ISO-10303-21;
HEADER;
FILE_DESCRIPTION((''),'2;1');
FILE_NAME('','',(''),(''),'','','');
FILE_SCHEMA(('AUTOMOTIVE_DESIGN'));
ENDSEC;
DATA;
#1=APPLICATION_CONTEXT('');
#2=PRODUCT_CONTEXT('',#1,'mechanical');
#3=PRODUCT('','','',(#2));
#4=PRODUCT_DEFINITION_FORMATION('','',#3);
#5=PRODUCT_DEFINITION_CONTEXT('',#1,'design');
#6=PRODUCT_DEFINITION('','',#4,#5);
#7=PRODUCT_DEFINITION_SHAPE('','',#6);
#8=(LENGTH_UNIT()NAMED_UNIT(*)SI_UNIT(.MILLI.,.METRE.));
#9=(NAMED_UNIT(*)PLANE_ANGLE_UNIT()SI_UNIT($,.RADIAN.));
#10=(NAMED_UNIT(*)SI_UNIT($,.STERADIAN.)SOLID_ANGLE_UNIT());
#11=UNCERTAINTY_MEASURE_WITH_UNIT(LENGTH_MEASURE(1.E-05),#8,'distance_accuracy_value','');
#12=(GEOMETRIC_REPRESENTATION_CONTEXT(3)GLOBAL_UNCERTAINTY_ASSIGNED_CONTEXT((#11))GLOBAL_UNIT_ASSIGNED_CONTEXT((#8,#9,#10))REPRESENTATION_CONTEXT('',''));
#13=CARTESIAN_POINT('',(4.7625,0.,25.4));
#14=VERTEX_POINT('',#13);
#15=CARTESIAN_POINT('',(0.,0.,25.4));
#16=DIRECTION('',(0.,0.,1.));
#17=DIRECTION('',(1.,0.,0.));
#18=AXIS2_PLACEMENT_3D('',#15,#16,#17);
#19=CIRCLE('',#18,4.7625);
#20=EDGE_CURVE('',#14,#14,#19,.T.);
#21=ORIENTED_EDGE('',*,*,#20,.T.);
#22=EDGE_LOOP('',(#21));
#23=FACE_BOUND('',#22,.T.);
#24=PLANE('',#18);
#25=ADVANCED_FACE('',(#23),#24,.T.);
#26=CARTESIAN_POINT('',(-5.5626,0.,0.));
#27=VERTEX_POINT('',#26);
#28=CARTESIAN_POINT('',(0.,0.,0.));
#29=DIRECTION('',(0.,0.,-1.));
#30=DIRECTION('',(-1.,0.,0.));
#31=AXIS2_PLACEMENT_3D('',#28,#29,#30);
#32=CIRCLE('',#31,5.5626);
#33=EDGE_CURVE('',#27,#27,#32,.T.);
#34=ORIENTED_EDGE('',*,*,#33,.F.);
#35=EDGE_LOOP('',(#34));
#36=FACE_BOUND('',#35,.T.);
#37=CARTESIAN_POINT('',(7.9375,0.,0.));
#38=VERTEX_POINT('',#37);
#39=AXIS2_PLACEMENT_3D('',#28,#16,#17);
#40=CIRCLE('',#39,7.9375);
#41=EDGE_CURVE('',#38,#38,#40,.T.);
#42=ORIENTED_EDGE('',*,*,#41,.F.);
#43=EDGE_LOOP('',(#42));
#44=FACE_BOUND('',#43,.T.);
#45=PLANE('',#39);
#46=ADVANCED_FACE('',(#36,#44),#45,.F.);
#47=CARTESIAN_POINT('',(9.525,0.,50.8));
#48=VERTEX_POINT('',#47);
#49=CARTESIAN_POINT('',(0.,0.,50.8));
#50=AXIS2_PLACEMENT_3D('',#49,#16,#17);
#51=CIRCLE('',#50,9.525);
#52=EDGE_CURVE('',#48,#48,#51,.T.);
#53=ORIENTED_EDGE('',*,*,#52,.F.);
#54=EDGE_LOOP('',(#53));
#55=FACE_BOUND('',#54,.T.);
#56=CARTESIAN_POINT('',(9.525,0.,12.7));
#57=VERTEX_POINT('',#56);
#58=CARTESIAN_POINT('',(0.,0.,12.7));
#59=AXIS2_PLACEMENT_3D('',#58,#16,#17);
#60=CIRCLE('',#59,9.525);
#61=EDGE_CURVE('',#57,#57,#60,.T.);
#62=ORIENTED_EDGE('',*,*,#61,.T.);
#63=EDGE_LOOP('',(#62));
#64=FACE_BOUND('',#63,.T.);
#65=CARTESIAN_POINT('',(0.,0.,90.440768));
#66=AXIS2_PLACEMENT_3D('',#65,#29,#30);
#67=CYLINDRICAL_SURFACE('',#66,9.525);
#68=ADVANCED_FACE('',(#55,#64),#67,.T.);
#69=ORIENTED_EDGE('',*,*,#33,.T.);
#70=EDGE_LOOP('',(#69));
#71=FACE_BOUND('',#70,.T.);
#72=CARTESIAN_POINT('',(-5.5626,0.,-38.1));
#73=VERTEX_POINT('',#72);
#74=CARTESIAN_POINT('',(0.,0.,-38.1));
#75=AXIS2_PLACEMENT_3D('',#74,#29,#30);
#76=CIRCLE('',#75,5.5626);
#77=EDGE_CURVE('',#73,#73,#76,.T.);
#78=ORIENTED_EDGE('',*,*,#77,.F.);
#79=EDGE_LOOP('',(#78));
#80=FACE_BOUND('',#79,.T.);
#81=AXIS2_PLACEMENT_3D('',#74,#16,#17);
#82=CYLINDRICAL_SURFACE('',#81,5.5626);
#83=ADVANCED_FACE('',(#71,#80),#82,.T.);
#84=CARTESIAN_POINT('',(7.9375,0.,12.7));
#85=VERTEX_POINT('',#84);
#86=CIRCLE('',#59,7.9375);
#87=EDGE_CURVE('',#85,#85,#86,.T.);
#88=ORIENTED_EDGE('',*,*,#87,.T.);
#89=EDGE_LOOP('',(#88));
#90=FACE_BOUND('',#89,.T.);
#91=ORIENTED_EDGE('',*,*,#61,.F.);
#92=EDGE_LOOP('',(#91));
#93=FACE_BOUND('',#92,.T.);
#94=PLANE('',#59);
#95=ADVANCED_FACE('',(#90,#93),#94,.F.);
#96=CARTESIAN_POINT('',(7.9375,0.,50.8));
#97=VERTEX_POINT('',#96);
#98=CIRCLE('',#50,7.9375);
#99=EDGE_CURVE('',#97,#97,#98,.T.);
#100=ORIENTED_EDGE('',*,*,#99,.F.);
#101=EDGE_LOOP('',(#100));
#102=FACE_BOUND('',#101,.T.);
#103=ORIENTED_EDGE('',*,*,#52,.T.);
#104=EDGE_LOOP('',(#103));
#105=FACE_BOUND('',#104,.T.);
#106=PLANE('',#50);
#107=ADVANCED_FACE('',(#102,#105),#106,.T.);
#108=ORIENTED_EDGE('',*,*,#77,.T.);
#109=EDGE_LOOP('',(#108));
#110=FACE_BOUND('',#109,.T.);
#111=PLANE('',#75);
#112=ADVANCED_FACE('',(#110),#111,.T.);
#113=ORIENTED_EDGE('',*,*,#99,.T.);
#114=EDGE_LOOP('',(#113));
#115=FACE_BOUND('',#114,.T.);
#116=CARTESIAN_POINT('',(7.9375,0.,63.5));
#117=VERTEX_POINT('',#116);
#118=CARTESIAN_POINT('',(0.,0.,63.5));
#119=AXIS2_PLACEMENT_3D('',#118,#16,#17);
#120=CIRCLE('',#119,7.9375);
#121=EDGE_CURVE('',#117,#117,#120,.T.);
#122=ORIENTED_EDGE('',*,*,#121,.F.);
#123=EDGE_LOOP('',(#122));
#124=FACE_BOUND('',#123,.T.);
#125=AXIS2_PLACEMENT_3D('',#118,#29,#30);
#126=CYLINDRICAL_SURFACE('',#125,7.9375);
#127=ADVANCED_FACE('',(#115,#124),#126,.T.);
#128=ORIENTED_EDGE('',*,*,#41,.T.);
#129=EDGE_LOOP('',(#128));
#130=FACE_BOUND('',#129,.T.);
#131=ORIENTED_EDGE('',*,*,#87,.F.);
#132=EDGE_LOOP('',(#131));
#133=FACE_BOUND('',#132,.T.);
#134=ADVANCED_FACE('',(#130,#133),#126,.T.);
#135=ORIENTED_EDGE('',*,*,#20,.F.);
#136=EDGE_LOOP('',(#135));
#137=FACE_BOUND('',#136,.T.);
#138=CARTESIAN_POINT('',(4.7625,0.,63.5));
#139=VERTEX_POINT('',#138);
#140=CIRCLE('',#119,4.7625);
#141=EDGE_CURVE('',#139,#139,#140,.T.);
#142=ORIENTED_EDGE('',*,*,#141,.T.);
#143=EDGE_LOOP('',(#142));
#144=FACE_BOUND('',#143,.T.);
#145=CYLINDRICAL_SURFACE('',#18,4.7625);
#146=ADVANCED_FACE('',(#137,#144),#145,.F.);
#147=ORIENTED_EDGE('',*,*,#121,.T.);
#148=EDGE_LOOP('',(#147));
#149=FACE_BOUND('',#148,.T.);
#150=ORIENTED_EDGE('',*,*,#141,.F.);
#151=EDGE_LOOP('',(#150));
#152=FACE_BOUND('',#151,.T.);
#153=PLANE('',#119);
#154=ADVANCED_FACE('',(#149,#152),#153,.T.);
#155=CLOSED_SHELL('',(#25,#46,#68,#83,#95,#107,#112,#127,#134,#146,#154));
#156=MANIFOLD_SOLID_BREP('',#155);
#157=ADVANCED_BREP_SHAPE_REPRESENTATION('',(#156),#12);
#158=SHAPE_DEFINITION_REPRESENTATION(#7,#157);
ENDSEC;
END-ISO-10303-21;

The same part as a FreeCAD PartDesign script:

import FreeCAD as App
import Part
import Sketcher
from FreeCAD import Vector
Q = App.Units.Quantity

doc = App.newDocument("Part")
params = doc.addObject("Spreadsheet::Sheet", "Params")
for row, (alias, value) in enumerate([
    ("sketch1_diameter", "0.625 in"),
    ("pad1_length", "2.5 in"),
    ("sketch2_diameter", "0.438 in"),
    ("pad2_length", "1.5 in"),
    ("sketch3_diameter", "0.75 in"),
    ("pad3_length", "1.5 in"),
    ("sketch4_diameter", "0.375 in"),
    ("pocket1_length", "1.5 in"),
], start=1):
    params.set(f"A{row}", alias)
    params.set(f"B{row}", "=" + value)
    params.setAlias(f"B{row}", alias)

body = doc.addObject("PartDesign::Body", "Body")

sketch1 = doc.addObject("Sketcher::SketchObject", "Sketch")
body.addObject(sketch1)
sketch1.AttachmentSupport = (doc.XY_Plane, [""])
sketch1.MapMode = "FlatFace"
sketch1.addGeometry(Part.Circle(Vector(0, 0, 0), Vector(0, 0, 1), 8), False)
sketch1.addConstraint([
    Sketcher.Constraint("Coincident", 0, 3, -1, 1),
    Sketcher.Constraint("Diameter", 0, Q("0.625 in")),
])
sketch1.setExpression("Constraints[1]", "Params.sketch1_diameter")
pad1 = doc.addObject("PartDesign::Pad", "Pad")
body.addObject(pad1)
pad1.Profile = sketch1
pad1.setExpression("Length", "Params.pad1_length")

sketch2 = doc.addObject("Sketcher::SketchObject", "Sketch001")
body.addObject(sketch2)
sketch2.AttachmentSupport = (doc.XY_Plane, [""])
sketch2.MapMode = "FlatFace"
sketch2.addGeometry(Part.Circle(Vector(0, 0, 0), Vector(0, 0, 1), 6), False)
sketch2.addConstraint([
    Sketcher.Constraint("Coincident", 0, 3, -1, 1),
    Sketcher.Constraint("Diameter", 0, Q("0.438 in")),
])
sketch2.setExpression("Constraints[1]", "Params.sketch2_diameter")
pad2 = doc.addObject("PartDesign::Pad", "Pad001")
body.addObject(pad2)
pad2.Profile = sketch2
pad2.setExpression("Length", "Params.pad2_length")
pad2.Reversed = True

sketch3 = doc.addObject("Sketcher::SketchObject", "Sketch002")
body.addObject(sketch3)
sketch3.AttachmentSupport = (doc.XY_Plane, [""])
sketch3.MapMode = "FlatFace"
sketch3.AttachmentOffset = App.Placement(Vector(0, 0, 0.5 * 25.4), App.Rotation())
sketch3.addGeometry(Part.Circle(Vector(0, 0, 0), Vector(0, 0, 1), 10), False)
sketch3.addConstraint([
    Sketcher.Constraint("Coincident", 0, 3, -1, 1),
    Sketcher.Constraint("Diameter", 0, Q("0.75 in")),
])
sketch3.setExpression("Constraints[1]", "Params.sketch3_diameter")
pad3 = doc.addObject("PartDesign::Pad", "Pad002")
body.addObject(pad3)
pad3.Profile = sketch3
pad3.setExpression("Length", "Params.pad3_length")

sketch4 = doc.addObject("Sketcher::SketchObject", "Sketch003")
body.addObject(sketch4)
sketch4.AttachmentSupport = (doc.XY_Plane, [""])
sketch4.MapMode = "FlatFace"
sketch4.AttachmentOffset = App.Placement(Vector(0, 0, 2.5 * 25.4), App.Rotation())
sketch4.addGeometry(Part.Circle(Vector(0, 0, 0), Vector(0, 0, 1), 4.8), False)
sketch4.addConstraint([
    Sketcher.Constraint("Coincident", 0, 3, -1, 1),
    Sketcher.Constraint("Diameter", 0, Q("0.375 in")),
])
sketch4.setExpression("Constraints[1]", "Params.sketch4_diameter")
pocket1 = doc.addObject("PartDesign::Pocket", "Pocket")
body.addObject(pocket1)
pocket1.Profile = sketch4
pocket1.setExpression("Length", "Params.pocket1_length")

doc.recompute()
